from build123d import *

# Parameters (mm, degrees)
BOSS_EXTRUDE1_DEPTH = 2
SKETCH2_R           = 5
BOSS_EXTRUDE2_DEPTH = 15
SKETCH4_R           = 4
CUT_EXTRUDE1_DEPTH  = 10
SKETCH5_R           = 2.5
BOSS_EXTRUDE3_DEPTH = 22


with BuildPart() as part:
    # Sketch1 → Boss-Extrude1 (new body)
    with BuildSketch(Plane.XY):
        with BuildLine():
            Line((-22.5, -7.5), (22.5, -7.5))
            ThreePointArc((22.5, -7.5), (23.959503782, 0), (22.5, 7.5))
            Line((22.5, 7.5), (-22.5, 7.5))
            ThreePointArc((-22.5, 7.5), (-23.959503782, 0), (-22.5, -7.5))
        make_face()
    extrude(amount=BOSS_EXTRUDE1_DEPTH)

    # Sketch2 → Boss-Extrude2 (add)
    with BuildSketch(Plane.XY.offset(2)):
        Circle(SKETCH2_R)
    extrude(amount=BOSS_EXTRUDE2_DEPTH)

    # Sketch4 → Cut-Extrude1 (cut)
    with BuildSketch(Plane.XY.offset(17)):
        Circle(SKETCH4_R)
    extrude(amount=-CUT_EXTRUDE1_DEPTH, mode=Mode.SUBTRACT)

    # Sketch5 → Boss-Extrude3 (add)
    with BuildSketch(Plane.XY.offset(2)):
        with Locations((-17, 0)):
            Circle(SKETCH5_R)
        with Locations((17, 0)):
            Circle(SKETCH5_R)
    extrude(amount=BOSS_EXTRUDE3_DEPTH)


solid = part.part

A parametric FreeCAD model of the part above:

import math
import FreeCAD as App
import Part
import Sketcher

V = App.Vector
Q = App.Units.Quantity

doc = App.newDocument("Part")
params = doc.addObject("Spreadsheet::Sheet", "Params")
for row, (alias, value) in enumerate([
    ("sketch1_radius", "20 mm"),
    ("sketch1_width", "45 mm"),
    ("pad1_length", "2 mm"),
    ("sketch2_diameter", "10 mm"),
    ("pad2_length", "15 mm"),
    ("sketch3_diameter", "8 mm"),
    ("pocket1_length", "10 mm"),
    ("sketch4_diameter", "5 mm"),
    ("pad3_length", "22 mm"),
], start=1):
    params.set(f"A{row}", alias)
    params.set(f"B{row}", "=" + value)
    params.setAlias(f"B{row}", alias)

body = doc.addObject("PartDesign::Body", "Body")

# Sketch on XY plane
sketch1 = body.newObject("Sketcher::SketchObject", "Sketch")
sketch1.AttachmentSupport = (doc.getObject("XY_Plane"), [""])
sketch1.MapMode = "FlatFace"
sketch1.addGeometry([
    Part.LineSegment(V(-22.5, -7.5, 0), V(22.5, -7.5, 0)),
    Part.ArcOfCircle(Part.Circle(V(3.959504, 0, 0), V(0, 0, 1), 20), math.radians(-22.024313), math.radians(22.024313)),
    Part.LineSegment(V(22.5, 7.5, 0), V(-22.5, 7.5, 0)),
    Part.ArcOfCircle(Part.Circle(V(-3.959504, 0, 0), V(0, 0, 1), 20), math.radians(157.975687), math.radians(202.024313)),
], False)
sketch1.addConstraint([
    Sketcher.Constraint("Coincident", 0, 2, 1, 1),
    Sketcher.Constraint("Coincident", 1, 2, 2, 1),
    Sketcher.Constraint("Coincident", 2, 2, 3, 1),
    Sketcher.Constraint("Coincident", 3, 2, 0, 1),
    Sketcher.Constraint("Horizontal", 0),
    Sketcher.Constraint("Horizontal", 2),
    Sketcher.Constraint("Equal", 1, 3),
    Sketcher.Constraint("Symmetric", 1, 3, 3, 3, -1, 1),
    Sketcher.Constraint("Symmetric", 0, 2, 1, 2, -1),
    Sketcher.Constraint("Radius", 1, Q("20 mm")),
    Sketcher.Constraint("DistanceX", 0, 1, 0, 2, Q("45 mm")),
    Sketcher.Constraint("DistanceY", 0, 2, 1, 2, Q("15 mm")),
])
sketch1.setExpression("Constraints[9]", "Params.sketch1_radius")
sketch1.setExpression("Constraints[10]", "Params.sketch1_width")
pad1 = body.newObject("PartDesign::Pad", "Pad")
pad1.Profile = sketch1
pad1.setExpression("Length", "Params.pad1_length")

# Sketch on XY plane
sketch2 = body.newObject("Sketcher::SketchObject", "Sketch001")
sketch2.AttachmentSupport = (doc.getObject("XY_Plane"), [""])
sketch2.MapMode = "FlatFace"
sketch2.AttachmentOffset = App.Placement(V(0, 0, 2), App.Rotation())
sketch2.addGeometry(Part.Circle(V(0, 0, 0), V(0, 0, 1), 5), False)
sketch2.addConstraint([
    Sketcher.Constraint("Coincident", 0, 3, -1, 1),
    Sketcher.Constraint("Diameter", 0, Q("10 mm")),
])
sketch2.setExpression("Constraints[1]", "Params.sketch2_diameter")
pad2 = body.newObject("PartDesign::Pad", "Pad001")
pad2.Profile = sketch2
pad2.setExpression("Length", "Params.pad2_length")

# Sketch on XY plane
sketch3 = body.newObject("Sketcher::SketchObject", "Sketch002")
sketch3.AttachmentSupport = (doc.getObject("XY_Plane"), [""])
sketch3.MapMode = "FlatFace"
sketch3.AttachmentOffset = App.Placement(V(0, 0, 17), App.Rotation())
sketch3.addGeometry(Part.Circle(V(0, 0, 0), V(0, 0, 1), 4), False)
sketch3.addConstraint([
    Sketcher.Constraint("Coincident", 0, 3, -1, 1),
    Sketcher.Constraint("Diameter", 0, Q("8 mm")),
])
sketch3.setExpression("Constraints[1]", "Params.sketch3_diameter")
pocket1 = body.newObject("PartDesign::Pocket", "Pocket")
pocket1.Profile = sketch3
pocket1.setExpression("Length", "Params.pocket1_length")

# Sketch on XY plane
sketch4 = body.newObject("Sketcher::SketchObject", "Sketch003")
sketch4.AttachmentSupport = (doc.getObject("XY_Plane"), [""])
sketch4.MapMode = "FlatFace"
sketch4.AttachmentOffset = App.Placement(V(0, 0, 2), App.Rotation())
sketch4.addGeometry([
    Part.Circle(V(-17, 0, 0), V(0, 0, 1), 2.5),
    Part.Circle(V(17, 0, 0), V(0, 0, 1), 2.5),
], False)
sketch4.addConstraint([
    Sketcher.Constraint("Equal", 0, 1),
    Sketcher.Constraint("Symmetric", 0, 3, 1, 3, -1, 1),
    Sketcher.Constraint("PointOnObject", 0, 3, -1),
    Sketcher.Constraint("Diameter", 0, Q("5 mm")),
    Sketcher.Constraint("DistanceX", 0, 3, -1, 1, Q("17 mm")),
])
sketch4.setExpression("Constraints[3]", "Params.sketch4_diameter")
pad3 = body.newObject("PartDesign::Pad", "Pad002")
pad3.Profile = sketch4
pad3.setExpression("Length", "Params.pad3_length")

doc.recompute()
